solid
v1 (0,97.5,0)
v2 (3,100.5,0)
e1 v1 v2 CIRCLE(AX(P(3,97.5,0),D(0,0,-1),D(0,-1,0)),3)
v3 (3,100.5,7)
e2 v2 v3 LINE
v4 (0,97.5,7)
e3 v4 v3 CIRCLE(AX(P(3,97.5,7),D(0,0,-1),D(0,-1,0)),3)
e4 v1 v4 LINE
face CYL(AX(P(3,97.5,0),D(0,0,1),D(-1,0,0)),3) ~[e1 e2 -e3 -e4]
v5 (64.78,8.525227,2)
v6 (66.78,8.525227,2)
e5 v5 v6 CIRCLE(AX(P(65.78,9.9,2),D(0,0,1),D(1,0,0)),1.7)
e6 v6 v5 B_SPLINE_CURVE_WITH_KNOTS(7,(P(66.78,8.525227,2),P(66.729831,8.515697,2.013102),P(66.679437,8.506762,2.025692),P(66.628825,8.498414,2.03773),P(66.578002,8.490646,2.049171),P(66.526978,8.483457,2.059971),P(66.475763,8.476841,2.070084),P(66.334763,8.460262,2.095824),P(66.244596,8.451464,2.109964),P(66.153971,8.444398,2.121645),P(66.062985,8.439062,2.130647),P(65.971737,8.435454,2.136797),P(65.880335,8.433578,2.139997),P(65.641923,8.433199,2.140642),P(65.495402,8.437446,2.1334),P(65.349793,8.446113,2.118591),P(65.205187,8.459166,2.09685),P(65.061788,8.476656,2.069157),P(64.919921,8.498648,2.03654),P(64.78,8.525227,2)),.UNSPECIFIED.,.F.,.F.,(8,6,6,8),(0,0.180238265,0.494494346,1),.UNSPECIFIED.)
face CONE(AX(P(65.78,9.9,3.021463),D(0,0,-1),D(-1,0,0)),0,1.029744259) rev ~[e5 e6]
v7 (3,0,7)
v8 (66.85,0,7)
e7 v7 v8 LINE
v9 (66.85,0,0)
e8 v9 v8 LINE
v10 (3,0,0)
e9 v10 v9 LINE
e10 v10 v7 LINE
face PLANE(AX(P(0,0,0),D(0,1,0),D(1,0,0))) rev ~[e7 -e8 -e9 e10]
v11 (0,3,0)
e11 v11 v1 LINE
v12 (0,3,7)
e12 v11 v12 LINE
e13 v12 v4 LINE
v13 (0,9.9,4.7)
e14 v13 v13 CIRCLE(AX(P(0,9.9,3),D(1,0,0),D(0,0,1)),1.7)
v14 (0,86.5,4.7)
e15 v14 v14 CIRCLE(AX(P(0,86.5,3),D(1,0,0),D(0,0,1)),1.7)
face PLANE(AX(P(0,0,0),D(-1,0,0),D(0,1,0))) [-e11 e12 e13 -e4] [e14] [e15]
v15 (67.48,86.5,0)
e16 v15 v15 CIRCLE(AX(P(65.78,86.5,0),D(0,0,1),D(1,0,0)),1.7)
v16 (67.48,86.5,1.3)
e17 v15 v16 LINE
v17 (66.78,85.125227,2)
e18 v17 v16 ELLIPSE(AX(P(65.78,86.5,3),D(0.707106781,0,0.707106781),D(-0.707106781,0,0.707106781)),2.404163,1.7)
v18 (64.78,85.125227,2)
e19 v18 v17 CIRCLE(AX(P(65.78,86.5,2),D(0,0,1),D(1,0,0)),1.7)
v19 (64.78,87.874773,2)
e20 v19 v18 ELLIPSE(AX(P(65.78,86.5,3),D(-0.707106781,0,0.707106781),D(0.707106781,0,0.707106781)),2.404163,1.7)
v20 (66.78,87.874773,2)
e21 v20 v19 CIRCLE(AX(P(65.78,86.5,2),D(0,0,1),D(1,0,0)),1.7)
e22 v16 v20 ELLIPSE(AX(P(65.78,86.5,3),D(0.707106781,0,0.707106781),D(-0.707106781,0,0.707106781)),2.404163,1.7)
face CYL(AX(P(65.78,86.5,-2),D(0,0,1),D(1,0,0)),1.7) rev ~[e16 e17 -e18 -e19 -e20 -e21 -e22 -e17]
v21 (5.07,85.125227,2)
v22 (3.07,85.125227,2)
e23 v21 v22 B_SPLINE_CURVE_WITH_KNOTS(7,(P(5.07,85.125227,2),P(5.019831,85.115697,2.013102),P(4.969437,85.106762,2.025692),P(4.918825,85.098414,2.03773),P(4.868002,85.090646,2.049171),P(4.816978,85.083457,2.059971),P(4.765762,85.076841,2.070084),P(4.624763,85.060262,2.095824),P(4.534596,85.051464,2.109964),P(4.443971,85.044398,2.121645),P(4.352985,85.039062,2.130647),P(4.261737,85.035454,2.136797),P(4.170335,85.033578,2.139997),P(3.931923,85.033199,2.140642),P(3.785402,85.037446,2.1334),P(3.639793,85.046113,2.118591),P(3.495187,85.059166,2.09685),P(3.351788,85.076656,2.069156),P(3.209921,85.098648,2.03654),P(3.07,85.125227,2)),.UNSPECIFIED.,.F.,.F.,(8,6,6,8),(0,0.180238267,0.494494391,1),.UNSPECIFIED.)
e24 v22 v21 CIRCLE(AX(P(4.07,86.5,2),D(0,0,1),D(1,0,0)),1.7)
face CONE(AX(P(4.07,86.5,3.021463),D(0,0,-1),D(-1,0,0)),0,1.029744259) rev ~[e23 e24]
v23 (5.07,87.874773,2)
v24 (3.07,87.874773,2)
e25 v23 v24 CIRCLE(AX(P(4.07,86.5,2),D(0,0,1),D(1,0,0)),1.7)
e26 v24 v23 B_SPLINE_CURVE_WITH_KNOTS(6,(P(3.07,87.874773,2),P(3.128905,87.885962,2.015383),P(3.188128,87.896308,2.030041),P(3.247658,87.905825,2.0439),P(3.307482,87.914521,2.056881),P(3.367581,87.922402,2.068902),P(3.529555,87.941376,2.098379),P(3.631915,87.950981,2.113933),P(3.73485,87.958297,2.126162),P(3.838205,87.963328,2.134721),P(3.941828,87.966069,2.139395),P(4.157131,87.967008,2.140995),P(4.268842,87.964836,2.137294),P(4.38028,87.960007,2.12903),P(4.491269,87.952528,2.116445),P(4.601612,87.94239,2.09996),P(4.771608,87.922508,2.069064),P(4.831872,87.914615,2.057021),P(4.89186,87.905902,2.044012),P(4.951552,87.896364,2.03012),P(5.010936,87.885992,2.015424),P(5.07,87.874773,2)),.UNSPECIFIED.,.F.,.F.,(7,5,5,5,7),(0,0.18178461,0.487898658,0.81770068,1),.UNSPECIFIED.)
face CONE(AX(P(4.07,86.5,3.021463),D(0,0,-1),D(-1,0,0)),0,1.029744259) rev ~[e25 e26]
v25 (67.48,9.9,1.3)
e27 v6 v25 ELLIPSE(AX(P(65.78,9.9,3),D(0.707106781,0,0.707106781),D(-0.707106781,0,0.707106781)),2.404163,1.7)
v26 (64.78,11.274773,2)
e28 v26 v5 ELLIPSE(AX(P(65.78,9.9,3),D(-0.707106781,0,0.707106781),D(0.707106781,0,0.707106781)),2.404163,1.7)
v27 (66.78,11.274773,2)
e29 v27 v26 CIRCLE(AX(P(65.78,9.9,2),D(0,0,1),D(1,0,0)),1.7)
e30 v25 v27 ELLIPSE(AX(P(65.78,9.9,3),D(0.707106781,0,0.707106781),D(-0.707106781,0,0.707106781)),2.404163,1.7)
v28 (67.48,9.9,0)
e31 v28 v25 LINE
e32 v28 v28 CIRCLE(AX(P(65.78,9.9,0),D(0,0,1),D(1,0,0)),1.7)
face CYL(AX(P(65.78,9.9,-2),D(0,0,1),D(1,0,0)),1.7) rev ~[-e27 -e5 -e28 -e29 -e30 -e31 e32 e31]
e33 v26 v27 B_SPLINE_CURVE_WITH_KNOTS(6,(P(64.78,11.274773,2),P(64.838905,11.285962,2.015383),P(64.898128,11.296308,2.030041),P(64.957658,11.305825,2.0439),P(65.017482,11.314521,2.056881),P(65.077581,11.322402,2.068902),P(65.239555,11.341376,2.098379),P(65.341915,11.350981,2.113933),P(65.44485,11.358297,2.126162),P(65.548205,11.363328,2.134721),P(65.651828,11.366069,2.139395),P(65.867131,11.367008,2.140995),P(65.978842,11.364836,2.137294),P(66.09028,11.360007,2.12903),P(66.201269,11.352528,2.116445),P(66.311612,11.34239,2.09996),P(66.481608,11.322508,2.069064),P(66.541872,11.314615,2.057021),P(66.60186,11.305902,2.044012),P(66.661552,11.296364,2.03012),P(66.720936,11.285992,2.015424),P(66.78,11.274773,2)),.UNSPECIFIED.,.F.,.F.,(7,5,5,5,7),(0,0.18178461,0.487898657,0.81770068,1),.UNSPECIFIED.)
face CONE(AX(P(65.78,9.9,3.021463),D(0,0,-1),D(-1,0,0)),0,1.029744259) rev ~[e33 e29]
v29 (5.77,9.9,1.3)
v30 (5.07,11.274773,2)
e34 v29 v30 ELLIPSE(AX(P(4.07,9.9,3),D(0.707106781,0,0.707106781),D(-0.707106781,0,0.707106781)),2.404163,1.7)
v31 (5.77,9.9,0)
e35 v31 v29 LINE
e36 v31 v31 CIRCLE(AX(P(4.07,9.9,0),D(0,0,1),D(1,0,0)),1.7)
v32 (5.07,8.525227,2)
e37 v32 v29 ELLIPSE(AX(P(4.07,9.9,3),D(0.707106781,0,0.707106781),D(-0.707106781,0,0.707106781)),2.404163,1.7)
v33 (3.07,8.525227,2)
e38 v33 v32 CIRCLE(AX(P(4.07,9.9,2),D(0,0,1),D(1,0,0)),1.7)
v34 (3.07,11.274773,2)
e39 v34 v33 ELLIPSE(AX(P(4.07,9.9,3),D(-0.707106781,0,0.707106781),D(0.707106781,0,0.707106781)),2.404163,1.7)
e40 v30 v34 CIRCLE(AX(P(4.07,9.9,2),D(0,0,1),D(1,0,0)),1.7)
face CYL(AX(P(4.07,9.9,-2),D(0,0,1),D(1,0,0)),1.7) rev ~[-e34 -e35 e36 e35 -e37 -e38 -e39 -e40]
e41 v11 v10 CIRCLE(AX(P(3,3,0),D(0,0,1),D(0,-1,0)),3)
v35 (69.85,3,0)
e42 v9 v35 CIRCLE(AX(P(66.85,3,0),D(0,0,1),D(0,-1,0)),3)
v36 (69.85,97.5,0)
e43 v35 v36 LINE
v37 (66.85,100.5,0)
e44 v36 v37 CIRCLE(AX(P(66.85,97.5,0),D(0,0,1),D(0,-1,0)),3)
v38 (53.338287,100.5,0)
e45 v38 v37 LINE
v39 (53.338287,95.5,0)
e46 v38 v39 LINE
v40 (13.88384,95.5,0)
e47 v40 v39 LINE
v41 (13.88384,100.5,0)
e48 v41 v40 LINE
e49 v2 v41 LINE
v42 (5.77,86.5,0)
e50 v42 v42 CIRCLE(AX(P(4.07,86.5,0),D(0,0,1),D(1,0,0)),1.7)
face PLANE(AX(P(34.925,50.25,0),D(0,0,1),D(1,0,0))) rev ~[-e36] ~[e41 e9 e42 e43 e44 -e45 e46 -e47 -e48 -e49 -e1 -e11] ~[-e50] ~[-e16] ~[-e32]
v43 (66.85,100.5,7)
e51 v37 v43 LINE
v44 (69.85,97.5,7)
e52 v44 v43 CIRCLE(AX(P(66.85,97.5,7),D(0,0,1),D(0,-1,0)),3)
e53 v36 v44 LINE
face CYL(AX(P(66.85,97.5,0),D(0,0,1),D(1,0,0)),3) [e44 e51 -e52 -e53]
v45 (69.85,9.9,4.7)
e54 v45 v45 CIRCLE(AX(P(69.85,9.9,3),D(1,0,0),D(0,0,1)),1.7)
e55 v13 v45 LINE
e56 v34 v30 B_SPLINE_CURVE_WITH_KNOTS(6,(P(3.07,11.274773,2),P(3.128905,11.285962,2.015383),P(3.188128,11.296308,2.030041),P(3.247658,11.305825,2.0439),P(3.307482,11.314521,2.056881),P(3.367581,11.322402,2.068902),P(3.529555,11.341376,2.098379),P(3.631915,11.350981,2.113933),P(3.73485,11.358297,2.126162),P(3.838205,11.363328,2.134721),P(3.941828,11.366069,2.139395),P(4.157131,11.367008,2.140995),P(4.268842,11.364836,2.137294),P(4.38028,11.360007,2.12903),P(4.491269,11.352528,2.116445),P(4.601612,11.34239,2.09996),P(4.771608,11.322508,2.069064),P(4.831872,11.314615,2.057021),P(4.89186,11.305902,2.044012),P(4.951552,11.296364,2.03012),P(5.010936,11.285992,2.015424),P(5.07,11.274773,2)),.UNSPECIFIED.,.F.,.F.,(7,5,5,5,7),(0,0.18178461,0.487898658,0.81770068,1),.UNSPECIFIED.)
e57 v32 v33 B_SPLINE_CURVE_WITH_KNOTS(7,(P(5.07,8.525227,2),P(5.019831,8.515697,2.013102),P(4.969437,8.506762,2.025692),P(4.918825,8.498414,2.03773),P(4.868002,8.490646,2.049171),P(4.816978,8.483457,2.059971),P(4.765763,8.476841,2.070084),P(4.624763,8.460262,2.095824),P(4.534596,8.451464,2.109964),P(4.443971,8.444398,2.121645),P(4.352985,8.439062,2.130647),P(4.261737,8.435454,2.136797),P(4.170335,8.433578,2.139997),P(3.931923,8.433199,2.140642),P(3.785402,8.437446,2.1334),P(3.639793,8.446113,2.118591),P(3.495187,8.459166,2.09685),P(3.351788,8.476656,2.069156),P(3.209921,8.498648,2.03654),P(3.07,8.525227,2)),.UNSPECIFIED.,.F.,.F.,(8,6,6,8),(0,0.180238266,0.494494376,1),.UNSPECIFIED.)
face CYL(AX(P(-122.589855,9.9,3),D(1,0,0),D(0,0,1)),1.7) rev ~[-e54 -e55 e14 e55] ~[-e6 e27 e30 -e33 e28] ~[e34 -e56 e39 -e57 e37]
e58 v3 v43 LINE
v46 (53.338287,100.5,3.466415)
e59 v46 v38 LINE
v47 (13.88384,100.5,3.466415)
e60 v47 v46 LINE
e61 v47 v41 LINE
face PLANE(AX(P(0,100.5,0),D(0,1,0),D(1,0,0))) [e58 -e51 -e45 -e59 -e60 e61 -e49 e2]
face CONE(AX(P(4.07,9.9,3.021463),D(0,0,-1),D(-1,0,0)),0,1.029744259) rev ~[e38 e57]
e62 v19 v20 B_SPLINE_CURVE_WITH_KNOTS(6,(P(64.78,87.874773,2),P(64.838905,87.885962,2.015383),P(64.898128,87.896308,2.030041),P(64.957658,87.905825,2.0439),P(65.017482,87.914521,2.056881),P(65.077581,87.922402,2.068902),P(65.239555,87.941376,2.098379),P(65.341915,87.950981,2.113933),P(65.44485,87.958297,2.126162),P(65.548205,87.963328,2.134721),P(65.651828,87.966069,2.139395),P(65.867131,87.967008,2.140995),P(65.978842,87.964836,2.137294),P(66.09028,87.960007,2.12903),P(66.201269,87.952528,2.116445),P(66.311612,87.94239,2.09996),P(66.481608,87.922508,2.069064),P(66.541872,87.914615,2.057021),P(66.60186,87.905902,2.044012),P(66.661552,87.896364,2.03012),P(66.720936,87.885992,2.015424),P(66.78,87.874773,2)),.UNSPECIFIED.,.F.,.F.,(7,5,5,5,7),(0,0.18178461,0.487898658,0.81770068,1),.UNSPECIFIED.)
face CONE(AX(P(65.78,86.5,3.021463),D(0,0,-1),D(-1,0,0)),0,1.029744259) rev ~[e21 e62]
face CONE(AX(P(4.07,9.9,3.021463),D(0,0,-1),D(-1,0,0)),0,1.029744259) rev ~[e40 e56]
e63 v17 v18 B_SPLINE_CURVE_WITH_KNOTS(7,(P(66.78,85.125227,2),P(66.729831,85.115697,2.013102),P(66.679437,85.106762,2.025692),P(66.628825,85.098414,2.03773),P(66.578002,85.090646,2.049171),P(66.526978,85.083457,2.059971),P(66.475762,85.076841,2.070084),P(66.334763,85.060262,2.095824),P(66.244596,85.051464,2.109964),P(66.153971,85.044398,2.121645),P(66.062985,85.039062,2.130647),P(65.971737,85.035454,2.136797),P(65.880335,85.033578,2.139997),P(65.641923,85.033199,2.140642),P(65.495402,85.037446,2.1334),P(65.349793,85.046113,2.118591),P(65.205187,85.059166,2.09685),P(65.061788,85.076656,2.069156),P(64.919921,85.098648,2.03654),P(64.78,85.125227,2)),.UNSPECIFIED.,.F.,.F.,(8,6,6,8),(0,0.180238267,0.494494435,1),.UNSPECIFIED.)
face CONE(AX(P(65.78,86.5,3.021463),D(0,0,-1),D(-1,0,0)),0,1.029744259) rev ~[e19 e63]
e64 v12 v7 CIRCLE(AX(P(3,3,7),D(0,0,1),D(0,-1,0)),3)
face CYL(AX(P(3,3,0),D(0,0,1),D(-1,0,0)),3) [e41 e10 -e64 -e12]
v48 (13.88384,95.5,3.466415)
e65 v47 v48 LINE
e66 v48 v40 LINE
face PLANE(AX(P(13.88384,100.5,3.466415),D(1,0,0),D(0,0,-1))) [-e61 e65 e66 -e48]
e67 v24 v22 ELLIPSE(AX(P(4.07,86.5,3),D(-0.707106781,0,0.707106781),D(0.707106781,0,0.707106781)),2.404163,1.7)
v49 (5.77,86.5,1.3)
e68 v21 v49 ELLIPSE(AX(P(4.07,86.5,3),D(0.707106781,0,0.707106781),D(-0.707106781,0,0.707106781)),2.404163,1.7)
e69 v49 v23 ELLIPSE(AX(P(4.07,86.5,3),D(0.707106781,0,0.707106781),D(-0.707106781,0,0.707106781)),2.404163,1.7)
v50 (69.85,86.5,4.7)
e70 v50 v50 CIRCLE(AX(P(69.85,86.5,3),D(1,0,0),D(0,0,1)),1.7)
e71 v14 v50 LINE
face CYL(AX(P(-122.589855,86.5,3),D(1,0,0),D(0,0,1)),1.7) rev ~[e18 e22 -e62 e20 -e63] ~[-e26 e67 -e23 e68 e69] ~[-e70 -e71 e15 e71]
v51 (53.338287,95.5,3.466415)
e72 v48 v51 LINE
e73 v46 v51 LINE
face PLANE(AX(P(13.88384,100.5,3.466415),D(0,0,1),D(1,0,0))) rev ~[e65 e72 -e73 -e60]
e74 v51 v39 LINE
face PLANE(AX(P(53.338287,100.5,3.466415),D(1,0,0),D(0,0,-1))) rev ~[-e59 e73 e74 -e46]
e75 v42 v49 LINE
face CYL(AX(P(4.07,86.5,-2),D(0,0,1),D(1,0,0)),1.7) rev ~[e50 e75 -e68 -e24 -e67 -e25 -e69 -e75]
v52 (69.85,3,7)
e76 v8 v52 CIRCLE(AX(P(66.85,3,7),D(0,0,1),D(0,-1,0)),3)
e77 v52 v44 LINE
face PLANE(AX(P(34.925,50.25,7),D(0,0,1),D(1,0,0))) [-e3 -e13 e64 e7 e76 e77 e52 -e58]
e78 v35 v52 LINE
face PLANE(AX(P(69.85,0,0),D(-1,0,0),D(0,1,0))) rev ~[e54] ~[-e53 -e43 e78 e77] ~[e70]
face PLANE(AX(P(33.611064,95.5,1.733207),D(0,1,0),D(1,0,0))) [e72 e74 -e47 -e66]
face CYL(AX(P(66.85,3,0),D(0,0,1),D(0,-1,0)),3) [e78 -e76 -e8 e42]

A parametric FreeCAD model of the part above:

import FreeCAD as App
import Part
import Sketcher
from FreeCAD import Vector


def edges_at(feature, points):
    """Names of the edges that pass closest to the given points."""
    edges = feature.Shape.Edges
    near = lambda p: min(range(len(edges)), key=lambda i: edges[i].distToShape(Part.Vertex(*p))[0])
    return sorted({f"Edge{near(p) + 1}" for p in points})

doc = App.newDocument("Part")
body = doc.addObject("PartDesign::Body", "Body")

sketch1 = body.newObject("Sketcher::SketchObject", "Sketch")
sketch1.AttachmentSupport = (doc.getObject("XY_Plane"), [""])
sketch1.MapMode = "FlatFace"
sketch1.addGeometry(Part.LineSegment(Vector(0, 100, 0), Vector(0, 0, 0)), False)
sketch1.addGeometry(Part.LineSegment(Vector(0, 0, 0), Vector(70, 0, 0)), False)
sketch1.addGeometry(Part.LineSegment(Vector(70, 0, 0), Vector(70, 100, 0)), False)
sketch1.addGeometry(Part.LineSegment(Vector(70, 100, 0), Vector(0, 100, 0)), False)
sketch1.addConstraint(Sketcher.Constraint("Coincident", 0, 2, 1, 1))
sketch1.addConstraint(Sketcher.Constraint("Coincident", 1, 2, 2, 1))
sketch1.addConstraint(Sketcher.Constraint("Coincident", 2, 2, 3, 1))
sketch1.addConstraint(Sketcher.Constraint("Coincident", 3, 2, 0, 1))
sketch1.addConstraint(Sketcher.Constraint("Vertical", 0))
sketch1.addConstraint(Sketcher.Constraint("Horizontal", 1))
sketch1.addConstraint(Sketcher.Constraint("Vertical", 2))
sketch1.addConstraint(Sketcher.Constraint("Horizontal", 3))
sketch1.addConstraint(Sketcher.Constraint("Coincident", 0, 2, -1, 1))
sketch1.addConstraint(Sketcher.Constraint("DistanceY", 0, 2, 0, 1, 100.5))
sketch1.addConstraint(Sketcher.Constraint("DistanceX", 1, 1, 1, 2, 69.85))
pad1 = body.newObject("PartDesign::Pad", "Pad")
pad1.Profile = sketch1
pad1.Length = 7
doc.recompute()

fillet = body.newObject("PartDesign::Fillet", "Fillet")
fillet.Base = (pad1, edges_at(pad1, [
    (0, 100.5, 3.5),
    (69.85, 100.5, 3.5),
    (69.85, 0, 3.5),
    (0, 0, 3.5),
]))
fillet.Radius = 3

sketch2 = body.newObject("Sketcher::SketchObject", "Sketch001")
sketch2.AttachmentSupport = (doc.getObject("XY_Plane"), [""])
sketch2.MapMode = "FlatFace"
sketch2.addGeometry(Part.Circle(Vector(4.1, 86.5, 0), Vector(0, 0, 1), 1.7), False)
sketch2.addGeometry(Part.Circle(Vector(65.8, 86.5, 0), Vector(0, 0, 1), 1.7), False)
sketch2.addGeometry(Part.Circle(Vector(65.8, 9.9, 0), Vector(0, 0, 1), 1.7), False)
sketch2.addGeometry(Part.Circle(Vector(4.1, 9.9, 0), Vector(0, 0, 1), 1.7), False)
sketch2.addConstraint(Sketcher.Constraint("Equal", 0, 1))
sketch2.addConstraint(Sketcher.Constraint("Equal", 1, 2))
sketch2.addConstraint(Sketcher.Constraint("Equal", 2, 3))
sketch2.addConstraint(Sketcher.Constraint("Horizontal", 0, 3, 1, 3))
sketch2.addConstraint(Sketcher.Constraint("Horizontal", 2, 3, 3, 3))
sketch2.addConstraint(Sketcher.Constraint("Vertical", 1, 3, 2, 3))
sketch2.addConstraint(Sketcher.Constraint("Vertical", 0, 3, 3, 3))
sketch2.addConstraint(Sketcher.Constraint("Diameter", 0, 3.4))
sketch2.addConstraint(Sketcher.Constraint("DistanceY", -1, 1, 0, 3, 86.5))
sketch2.addConstraint(Sketcher.Constraint("DistanceY", -1, 1, 2, 3, 9.9))
sketch2.addConstraint(Sketcher.Constraint("DistanceX", -1, 1, 0, 3, 4.07))
sketch2.addConstraint(Sketcher.Constraint("DistanceX", -1, 1, 1, 3, 65.78))
doc.recompute()
hole = body.newObject("PartDesign::Hole", "Hole")
hole.Profile = sketch2
hole.ThreadType = "None"
hole.Diameter = 3.4
hole.DepthType = "Dimension"
hole.Depth = 2
hole.DrillPoint = "Angled"
hole.DrillPointAngle = 118
hole.Reversed = True

sketch3 = body.newObject("Sketcher::SketchObject", "Sketch002")
sketch3.AttachmentSupport = (doc.getObject("YZ_Plane"), [""])
sketch3.MapMode = "FlatFace"
sketch3.addGeometry(Part.Circle(Vector(86.5, 3, 0), Vector(0, 0, 1), 1.7), False)
sketch3.addGeometry(Part.Circle(Vector(9.9, 3, 0), Vector(0, 0, 1), 1.7), False)
sketch3.addConstraint(Sketcher.Constraint("Equal", 0, 1))
sketch3.addConstraint(Sketcher.Constraint("Horizontal", 0, 3, 1, 3))
sketch3.addConstraint(Sketcher.Constraint("Diameter", 0, 3.4))
sketch3.addConstraint(Sketcher.Constraint("DistanceY", -1, 1, 0, 3, 3.0))
sketch3.addConstraint(Sketcher.Constraint("DistanceX", -1, 1, 0, 3, 86.5))
sketch3.addConstraint(Sketcher.Constraint("DistanceX", -1, 1, 1, 3, 9.9))
doc.recompute()
hole2 = body.newObject("PartDesign::Hole", "Hole001")
hole2.Profile = sketch3
hole2.ThreadType = "None"
hole2.Diameter = 3.4
hole2.DepthType = "ThroughAll"
hole2.Reversed = True

sketch4 = body.newObject("Sketcher::SketchObject", "Sketch003")
sketch4.AttachmentSupport = (doc.getObject("XZ_Plane"), [""])
sketch4.MapMode = "FlatFace"
sketch4.AttachmentOffset = App.Placement(Vector(0, 0, -100.5), App.Rotation())
sketch4.addGeometry(Part.LineSegment(Vector(13.9, 0, 0), Vector(13.9, 3.5, 0)), False)
sketch4.addGeometry(Part.LineSegment(Vector(13.9, 3.5, 0), Vector(53.3, 3.5, 0)), False)
sketch4.addGeometry(Part.LineSegment(Vector(53.3, 3.5, 0), Vector(53.3, 0, 0)), False)
sketch4.addGeometry(Part.LineSegment(Vector(53.3, 0, 0), Vector(13.9, 0, 0)), False)
sketch4.addConstraint(Sketcher.Constraint("Coincident", 0, 2, 1, 1))
sketch4.addConstraint(Sketcher.Constraint("Coincident", 1, 2, 2, 1))
sketch4.addConstraint(Sketcher.Constraint("Coincident", 2, 2, 3, 1))
sketch4.addConstraint(Sketcher.Constraint("Coincident", 3, 2, 0, 1))
sketch4.addConstraint(Sketcher.Constraint("Vertical", 0))
sketch4.addConstraint(Sketcher.Constraint("Horizontal", 1))
sketch4.addConstraint(Sketcher.Constraint("Vertical", 2))
sketch4.addConstraint(Sketcher.Constraint("Horizontal", 3))
sketch4.addConstraint(Sketcher.Constraint("PointOnObject", 2, 2, -1))
sketch4.addConstraint(Sketcher.Constraint("DistanceX", 1, 1, 1, 2, 39.454448))
sketch4.addConstraint(Sketcher.Constraint("DistanceY", 0, 1, 0, 2, 3.466415))
sketch4.addConstraint(Sketcher.Constraint("DistanceX", -1, 1, 0, 2, 13.88384))
pocket1 = body.newObject("PartDesign::Pocket", "Pocket")
pocket1.Profile = sketch4
pocket1.Length = 5
pocket1.Reversed = True

doc.recompute()
